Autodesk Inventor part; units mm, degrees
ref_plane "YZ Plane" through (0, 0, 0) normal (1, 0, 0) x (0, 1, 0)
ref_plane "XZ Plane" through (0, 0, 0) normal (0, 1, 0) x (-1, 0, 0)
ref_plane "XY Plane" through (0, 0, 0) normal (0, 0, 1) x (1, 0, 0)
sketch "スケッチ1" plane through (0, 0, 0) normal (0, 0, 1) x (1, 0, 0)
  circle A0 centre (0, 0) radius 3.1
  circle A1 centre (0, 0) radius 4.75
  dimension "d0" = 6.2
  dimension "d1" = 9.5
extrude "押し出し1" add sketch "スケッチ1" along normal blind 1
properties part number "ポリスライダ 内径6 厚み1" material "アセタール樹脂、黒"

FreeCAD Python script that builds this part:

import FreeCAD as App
import Part
import Sketcher

V = App.Vector

doc = App.newDocument("Part")
body = doc.addObject("PartDesign::Body", "Body")

# Sketch on XY plane
sketch1 = body.newObject("Sketcher::SketchObject", "Sketch")
sketch1.AttachmentSupport = (doc.getObject("XY_Plane"), [""])
sketch1.MapMode = "FlatFace"
sketch1.addGeometry(Part.Circle(V(0, 0, 0), V(0, 0, 1), 4.8), False)
sketch1.addGeometry(Part.Circle(V(0, 0, 0), V(0, 0, 1), 3.1), False)
sketch1.addConstraint(Sketcher.Constraint("Coincident", 0, 3, -1, 1))
sketch1.addConstraint(Sketcher.Constraint("Coincident", 1, 3, -1, 1))
sketch1.addConstraint(Sketcher.Constraint("Diameter", 0, 9.5))
sketch1.addConstraint(Sketcher.Constraint("Diameter", 1, 6.2))
pad1 = body.newObject("PartDesign::Pad", "Pad")
pad1.Profile = sketch1
pad1.Length = 1

doc.recompute()
